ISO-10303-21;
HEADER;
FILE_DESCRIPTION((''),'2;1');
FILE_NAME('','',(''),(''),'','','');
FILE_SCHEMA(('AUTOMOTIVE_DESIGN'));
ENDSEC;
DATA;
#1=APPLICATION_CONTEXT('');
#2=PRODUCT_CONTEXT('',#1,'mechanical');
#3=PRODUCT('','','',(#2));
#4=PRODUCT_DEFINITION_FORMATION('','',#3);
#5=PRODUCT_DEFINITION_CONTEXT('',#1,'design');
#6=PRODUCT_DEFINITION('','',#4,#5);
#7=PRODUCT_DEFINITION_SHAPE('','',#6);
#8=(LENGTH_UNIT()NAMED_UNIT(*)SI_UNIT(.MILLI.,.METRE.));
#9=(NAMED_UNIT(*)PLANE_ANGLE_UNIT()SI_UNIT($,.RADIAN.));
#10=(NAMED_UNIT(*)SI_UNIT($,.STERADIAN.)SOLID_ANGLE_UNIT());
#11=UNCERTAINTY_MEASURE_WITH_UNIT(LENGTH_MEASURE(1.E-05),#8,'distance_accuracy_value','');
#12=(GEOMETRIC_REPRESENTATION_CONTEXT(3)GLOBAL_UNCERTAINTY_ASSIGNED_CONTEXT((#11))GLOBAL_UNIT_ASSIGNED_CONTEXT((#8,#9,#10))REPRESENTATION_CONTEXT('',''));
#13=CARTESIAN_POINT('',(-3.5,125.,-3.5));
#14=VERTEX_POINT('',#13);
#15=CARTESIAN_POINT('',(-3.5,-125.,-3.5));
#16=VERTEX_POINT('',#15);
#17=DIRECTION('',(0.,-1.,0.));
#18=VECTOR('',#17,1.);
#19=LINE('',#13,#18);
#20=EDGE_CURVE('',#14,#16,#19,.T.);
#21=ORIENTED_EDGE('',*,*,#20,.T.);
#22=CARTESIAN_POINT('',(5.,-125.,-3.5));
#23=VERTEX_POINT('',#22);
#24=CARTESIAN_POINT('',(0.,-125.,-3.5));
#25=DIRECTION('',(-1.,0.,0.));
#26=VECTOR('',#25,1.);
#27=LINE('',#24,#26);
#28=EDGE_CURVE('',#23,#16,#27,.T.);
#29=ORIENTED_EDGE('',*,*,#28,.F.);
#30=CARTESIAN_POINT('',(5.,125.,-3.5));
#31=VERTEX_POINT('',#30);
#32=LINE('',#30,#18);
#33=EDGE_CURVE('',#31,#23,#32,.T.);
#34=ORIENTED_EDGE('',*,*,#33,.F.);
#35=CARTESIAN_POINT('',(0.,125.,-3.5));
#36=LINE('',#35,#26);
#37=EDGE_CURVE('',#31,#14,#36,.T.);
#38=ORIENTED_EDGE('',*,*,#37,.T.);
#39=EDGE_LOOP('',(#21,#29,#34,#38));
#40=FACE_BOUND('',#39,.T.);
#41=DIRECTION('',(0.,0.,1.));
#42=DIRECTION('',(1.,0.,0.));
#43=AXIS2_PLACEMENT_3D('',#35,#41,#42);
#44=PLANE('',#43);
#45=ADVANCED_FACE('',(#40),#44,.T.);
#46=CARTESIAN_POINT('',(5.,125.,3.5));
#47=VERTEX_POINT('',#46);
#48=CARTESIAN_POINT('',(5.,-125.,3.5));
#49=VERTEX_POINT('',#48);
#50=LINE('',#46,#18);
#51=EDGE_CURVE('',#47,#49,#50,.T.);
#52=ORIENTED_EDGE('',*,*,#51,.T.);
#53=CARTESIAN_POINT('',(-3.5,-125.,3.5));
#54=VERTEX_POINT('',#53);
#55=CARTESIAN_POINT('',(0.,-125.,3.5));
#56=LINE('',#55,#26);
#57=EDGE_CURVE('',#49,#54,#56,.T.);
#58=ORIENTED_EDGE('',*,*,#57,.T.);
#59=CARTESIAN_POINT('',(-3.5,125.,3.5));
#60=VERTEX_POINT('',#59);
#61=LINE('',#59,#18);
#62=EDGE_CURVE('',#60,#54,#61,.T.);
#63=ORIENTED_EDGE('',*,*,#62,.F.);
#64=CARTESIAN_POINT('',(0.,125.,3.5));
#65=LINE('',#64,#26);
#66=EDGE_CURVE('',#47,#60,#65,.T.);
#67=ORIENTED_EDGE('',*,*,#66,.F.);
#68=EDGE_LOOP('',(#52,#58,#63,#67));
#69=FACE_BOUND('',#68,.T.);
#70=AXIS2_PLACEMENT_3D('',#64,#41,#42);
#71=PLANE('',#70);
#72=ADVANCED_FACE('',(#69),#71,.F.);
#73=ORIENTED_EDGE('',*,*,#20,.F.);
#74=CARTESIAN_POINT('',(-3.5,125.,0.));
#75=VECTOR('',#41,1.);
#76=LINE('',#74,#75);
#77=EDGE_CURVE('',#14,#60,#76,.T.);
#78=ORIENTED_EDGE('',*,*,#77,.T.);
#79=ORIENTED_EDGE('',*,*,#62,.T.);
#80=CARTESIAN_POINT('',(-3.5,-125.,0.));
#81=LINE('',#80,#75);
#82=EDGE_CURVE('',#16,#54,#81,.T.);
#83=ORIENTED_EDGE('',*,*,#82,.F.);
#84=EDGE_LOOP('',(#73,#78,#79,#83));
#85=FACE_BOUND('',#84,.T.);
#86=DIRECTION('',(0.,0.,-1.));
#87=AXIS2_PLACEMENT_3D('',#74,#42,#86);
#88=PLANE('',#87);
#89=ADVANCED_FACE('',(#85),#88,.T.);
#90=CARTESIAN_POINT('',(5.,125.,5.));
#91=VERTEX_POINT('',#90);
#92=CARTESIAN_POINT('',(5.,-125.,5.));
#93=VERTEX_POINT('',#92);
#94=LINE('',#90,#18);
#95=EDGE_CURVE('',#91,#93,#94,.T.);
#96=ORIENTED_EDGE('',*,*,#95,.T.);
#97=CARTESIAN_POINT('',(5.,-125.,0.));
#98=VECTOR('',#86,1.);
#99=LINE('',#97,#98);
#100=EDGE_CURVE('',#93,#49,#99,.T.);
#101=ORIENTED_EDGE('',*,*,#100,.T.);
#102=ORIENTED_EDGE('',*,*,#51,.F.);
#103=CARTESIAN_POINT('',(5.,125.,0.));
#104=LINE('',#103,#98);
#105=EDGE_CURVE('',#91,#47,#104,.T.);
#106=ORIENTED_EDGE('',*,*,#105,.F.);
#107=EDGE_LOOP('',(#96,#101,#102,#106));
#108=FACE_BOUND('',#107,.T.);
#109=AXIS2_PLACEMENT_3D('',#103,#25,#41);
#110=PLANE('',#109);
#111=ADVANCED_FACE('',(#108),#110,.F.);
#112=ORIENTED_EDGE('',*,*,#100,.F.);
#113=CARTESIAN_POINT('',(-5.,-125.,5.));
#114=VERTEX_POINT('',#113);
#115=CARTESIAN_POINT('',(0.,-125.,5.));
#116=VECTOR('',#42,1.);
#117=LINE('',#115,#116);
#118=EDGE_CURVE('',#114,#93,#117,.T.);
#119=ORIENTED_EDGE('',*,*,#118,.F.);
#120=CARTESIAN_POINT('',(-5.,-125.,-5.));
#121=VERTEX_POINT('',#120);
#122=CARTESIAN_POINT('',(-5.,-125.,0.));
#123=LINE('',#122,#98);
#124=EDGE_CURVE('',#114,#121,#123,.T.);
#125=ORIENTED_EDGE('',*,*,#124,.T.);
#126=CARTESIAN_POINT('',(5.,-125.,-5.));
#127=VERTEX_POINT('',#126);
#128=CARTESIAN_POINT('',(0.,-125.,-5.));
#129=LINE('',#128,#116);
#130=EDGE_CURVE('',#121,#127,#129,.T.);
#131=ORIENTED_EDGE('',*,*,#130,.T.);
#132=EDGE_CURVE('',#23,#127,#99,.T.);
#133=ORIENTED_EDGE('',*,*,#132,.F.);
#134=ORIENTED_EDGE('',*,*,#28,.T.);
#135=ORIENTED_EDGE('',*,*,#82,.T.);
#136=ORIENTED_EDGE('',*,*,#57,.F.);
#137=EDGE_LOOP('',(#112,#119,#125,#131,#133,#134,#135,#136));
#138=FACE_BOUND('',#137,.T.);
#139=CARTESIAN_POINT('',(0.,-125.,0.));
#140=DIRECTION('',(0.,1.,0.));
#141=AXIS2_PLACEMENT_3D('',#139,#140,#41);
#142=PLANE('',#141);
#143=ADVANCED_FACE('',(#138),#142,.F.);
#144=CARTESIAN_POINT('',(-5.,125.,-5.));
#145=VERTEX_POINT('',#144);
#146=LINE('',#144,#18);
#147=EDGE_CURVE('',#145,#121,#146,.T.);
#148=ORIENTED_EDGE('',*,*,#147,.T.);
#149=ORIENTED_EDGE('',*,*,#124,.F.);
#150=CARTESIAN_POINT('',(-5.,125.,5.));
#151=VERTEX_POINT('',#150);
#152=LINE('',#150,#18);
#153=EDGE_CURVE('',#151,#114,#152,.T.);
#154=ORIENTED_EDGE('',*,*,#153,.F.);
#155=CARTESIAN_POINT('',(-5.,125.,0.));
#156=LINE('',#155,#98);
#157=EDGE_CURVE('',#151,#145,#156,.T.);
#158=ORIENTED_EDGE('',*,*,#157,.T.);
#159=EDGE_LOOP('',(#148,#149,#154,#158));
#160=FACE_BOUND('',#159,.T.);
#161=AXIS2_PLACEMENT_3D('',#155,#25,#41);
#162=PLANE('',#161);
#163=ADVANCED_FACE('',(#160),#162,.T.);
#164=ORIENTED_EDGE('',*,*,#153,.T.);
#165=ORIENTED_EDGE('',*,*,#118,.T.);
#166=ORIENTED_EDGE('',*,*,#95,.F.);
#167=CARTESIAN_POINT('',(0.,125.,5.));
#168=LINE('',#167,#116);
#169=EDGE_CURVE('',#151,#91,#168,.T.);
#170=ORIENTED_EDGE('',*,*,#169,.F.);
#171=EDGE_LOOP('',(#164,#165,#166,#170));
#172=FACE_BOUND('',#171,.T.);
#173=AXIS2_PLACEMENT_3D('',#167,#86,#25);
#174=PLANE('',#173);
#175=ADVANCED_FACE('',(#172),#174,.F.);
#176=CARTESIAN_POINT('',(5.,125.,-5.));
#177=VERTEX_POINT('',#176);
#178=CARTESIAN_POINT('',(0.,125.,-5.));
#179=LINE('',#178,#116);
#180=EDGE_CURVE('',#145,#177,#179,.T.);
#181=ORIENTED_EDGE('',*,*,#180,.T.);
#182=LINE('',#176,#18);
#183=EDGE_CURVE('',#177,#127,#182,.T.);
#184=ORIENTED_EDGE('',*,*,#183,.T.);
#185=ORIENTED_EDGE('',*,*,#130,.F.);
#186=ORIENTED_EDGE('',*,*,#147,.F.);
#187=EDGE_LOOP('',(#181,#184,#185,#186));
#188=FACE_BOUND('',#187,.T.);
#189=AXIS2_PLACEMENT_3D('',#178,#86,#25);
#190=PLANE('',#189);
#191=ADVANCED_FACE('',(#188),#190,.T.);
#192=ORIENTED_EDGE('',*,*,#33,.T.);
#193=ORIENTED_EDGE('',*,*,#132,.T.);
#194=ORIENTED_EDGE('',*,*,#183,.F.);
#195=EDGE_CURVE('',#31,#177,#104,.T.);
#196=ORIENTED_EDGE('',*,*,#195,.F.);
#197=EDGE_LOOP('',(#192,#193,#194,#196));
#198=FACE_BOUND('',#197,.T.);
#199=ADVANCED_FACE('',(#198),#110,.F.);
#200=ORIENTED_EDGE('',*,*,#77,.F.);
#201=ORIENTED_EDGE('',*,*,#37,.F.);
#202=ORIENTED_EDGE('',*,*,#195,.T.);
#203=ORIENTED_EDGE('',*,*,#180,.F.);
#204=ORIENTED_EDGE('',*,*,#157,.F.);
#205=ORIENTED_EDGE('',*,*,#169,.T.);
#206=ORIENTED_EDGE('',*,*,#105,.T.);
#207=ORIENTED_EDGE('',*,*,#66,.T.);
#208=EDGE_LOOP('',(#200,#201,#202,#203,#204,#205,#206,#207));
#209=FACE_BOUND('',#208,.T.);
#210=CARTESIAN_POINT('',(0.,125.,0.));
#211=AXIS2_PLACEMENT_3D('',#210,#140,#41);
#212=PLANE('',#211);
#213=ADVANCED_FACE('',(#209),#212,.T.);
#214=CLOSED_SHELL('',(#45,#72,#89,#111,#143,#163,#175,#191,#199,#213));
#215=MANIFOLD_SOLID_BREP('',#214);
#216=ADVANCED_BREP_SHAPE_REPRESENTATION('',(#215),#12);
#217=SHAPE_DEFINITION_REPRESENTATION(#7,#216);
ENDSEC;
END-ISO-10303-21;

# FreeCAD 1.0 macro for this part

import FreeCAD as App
import Part
import Sketcher
from FreeCAD import Vector


def add_polygon(sketch, points):
    """Adds a closed chain of lines whose ends are joined by coincident constraints."""
    first, n = sketch.GeometryCount, len(points)
    for a, b in zip(points, points[1:] + points[:1]):
        sketch.addGeometry(Part.LineSegment(App.Vector(*a, 0), App.Vector(*b, 0)), False)
    for i in range(n):
        sketch.addConstraint(Sketcher.Constraint("Coincident", first + i, 2, first + (i + 1) % n, 1))

doc = App.newDocument("Part")
body = doc.addObject("PartDesign::Body", "Body")

# Sketch on XZ plane
sketch1 = body.newObject("Sketcher::SketchObject", "Sketch")
sketch1.AttachmentSupport = (doc.getObject("XZ_Plane"), [""])
sketch1.MapMode = "FlatFace"
add_polygon(sketch1, [(-5, -5), (-5, 5), (5, 5), (5, 3.5), (-3.5, 3.5), (-3.5, -3.5), (5, -3.5), (5, -5)])  # lines 0-7
sketch1.addConstraint(Sketcher.Constraint("Vertical", 0))
sketch1.addConstraint(Sketcher.Constraint("Horizontal", 1))
sketch1.addConstraint(Sketcher.Constraint("Vertical", 2))
sketch1.addConstraint(Sketcher.Constraint("Horizontal", 3))
sketch1.addConstraint(Sketcher.Constraint("Vertical", 4))
sketch1.addConstraint(Sketcher.Constraint("Horizontal", 5))
sketch1.addConstraint(Sketcher.Constraint("Vertical", 6))
sketch1.addConstraint(Sketcher.Constraint("Horizontal", 7))
sketch1.addConstraint(Sketcher.Constraint("Symmetric", 0, 2, 6, 2, -1, 1))
sketch1.addConstraint(Sketcher.Constraint("Symmetric", 2, 2, 5, 2, -1))
sketch1.addConstraint(Sketcher.Constraint("Equal", 7, 0))
sketch1.addConstraint(Sketcher.Constraint("DistanceX", 1, 1, 1, 2, 10.0))
sketch1.addConstraint(Sketcher.Constraint("DistanceY", 4, 2, 4, 1, 7.0))
sketch1.addConstraint(Sketcher.Constraint("DistanceX", 3, 2, 3, 1, 8.5))
pad1 = body.newObject("PartDesign::Pad", "Pad")
pad1.Profile = sketch1
pad1.Length = 250
pad1.Midplane = True

doc.recompute()
